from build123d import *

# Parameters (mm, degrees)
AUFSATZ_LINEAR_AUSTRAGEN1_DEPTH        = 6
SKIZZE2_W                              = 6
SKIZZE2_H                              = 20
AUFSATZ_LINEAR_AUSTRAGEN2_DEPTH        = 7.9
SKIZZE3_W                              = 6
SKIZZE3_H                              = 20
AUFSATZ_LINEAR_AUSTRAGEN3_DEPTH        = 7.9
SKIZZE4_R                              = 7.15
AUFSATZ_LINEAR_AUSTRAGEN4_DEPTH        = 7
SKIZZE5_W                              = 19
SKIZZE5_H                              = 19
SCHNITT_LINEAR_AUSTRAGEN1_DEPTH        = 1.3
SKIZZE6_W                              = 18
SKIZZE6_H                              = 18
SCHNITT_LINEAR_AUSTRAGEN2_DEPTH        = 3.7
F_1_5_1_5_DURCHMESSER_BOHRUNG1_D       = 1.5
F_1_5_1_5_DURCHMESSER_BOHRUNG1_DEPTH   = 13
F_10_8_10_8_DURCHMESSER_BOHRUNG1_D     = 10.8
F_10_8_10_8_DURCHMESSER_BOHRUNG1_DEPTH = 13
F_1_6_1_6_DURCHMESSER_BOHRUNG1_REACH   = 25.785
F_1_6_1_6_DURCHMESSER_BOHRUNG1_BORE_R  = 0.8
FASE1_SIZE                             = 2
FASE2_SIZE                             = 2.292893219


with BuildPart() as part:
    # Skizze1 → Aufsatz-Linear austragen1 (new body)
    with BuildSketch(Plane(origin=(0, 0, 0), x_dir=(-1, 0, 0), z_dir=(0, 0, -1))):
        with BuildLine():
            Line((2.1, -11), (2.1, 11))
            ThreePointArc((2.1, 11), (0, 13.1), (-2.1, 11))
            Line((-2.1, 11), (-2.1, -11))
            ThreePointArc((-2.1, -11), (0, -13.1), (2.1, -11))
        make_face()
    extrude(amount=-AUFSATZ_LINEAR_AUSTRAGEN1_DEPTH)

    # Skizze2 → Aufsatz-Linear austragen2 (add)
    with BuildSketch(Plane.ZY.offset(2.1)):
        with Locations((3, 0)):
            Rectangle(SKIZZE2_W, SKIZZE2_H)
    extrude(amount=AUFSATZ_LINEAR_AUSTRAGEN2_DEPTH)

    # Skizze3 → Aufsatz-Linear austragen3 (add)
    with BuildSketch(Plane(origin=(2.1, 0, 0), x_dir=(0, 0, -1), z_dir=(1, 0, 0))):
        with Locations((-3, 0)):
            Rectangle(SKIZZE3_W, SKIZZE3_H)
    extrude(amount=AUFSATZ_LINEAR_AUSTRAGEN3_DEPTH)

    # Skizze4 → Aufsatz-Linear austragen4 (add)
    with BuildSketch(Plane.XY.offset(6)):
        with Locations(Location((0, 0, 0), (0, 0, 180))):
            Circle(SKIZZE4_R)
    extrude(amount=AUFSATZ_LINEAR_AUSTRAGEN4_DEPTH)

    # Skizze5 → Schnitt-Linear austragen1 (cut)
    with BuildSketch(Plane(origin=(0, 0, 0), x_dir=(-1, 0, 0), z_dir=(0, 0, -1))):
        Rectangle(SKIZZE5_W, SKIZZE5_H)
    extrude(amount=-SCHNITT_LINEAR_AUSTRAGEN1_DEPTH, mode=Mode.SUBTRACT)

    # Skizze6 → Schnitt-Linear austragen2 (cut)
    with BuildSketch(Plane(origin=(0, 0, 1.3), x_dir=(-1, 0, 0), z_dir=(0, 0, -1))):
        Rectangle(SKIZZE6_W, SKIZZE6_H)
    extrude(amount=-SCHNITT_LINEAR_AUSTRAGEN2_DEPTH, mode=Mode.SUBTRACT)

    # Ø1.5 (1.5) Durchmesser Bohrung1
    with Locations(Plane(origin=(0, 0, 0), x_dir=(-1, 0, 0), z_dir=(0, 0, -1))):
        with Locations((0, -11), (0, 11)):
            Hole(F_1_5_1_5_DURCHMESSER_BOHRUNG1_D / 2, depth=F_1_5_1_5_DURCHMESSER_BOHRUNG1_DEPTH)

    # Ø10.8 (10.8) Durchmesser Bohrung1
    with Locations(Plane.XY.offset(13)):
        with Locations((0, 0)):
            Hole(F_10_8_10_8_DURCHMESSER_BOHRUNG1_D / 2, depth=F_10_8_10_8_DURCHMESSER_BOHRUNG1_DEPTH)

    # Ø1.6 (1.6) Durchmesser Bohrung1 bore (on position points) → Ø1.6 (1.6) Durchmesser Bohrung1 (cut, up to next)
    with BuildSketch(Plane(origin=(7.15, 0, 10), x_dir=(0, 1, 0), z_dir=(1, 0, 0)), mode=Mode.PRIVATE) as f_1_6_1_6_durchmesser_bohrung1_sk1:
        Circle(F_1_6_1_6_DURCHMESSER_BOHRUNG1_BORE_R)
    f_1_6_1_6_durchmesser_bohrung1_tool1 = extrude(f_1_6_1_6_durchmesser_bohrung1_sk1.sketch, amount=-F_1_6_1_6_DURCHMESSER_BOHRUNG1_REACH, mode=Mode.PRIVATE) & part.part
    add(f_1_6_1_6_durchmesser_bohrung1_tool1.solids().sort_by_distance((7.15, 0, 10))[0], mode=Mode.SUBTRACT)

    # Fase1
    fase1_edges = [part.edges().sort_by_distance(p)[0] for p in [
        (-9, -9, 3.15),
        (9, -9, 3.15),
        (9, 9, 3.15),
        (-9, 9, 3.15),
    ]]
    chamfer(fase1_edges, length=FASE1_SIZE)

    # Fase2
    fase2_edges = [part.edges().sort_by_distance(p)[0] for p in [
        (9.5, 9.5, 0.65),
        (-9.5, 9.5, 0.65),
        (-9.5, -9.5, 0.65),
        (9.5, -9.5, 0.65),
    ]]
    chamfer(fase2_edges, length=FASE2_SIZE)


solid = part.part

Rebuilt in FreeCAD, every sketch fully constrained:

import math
import FreeCAD as App
import Part
import Sketcher
from FreeCAD import Vector


def edges_at(feature, points):
    """Names of the edges that pass closest to the given points."""
    edges = feature.Shape.Edges
    near = lambda p: min(range(len(edges)), key=lambda i: edges[i].distToShape(Part.Vertex(*p))[0])
    return sorted({f"Edge{near(p) + 1}" for p in points})

doc = App.newDocument("Part")
params = doc.addObject("Spreadsheet::Sheet", "Params")
for row, (alias, value) in enumerate([
    ("sketch1_radius", "2.1 mm"),
    ("sketch1_height", "22 mm"),
    ("pad1_length", "6 mm"),
    ("sketch2_width", "20 mm"),
    ("sketch2_height", "6 mm"),
    ("pad2_length", "7.9 mm"),
    ("sketch3_width", "20 mm"),
    ("sketch3_height", "6 mm"),
    ("pad3_length", "7.9 mm"),
    ("sketch4_diameter", "14.3 mm"),
    ("pad4_length", "7 mm"),
    ("sketch5_width", "19 mm"),
    ("pocket1_length", "1.3 mm"),
    ("sketch6_width", "18 mm"),
    ("pocket2_length", "3.7 mm"),
    ("sketch7_diameter", "1.5 mm"),
    ("hole_diameter", "1.5 mm"),
    ("hole_depth", "13 mm"),
    ("sketch8_diameter", "10.8 mm"),
    ("hole2_diameter", "10.8 mm"),
    ("hole2_depth", "13 mm"),
    ("sketch9_diameter", "1.6 mm"),
    ("pocket3_length", "1.809588 mm"),
    ("chamfer_size", "2 mm"),
    ("chamfer2_size", "2.292893 mm"),
], start=1):
    params.set(f"A{row}", alias)
    params.set(f"B{row}", "=" + value)
    params.setAlias(f"B{row}", alias)

body = doc.addObject("PartDesign::Body", "Body")

# Sketch on XY plane
sketch1 = body.newObject("Sketcher::SketchObject", "Sketch")
sketch1.AttachmentSupport = (doc.getObject("XY_Plane"), [""])
sketch1.MapMode = "FlatFace"
sketch1.addGeometry([
    Part.LineSegment(Vector(-2.1, -11, 0), Vector(-2.1, 11, 0)),
    Part.ArcOfCircle(Part.Circle(Vector(0, 11, 0), Vector(0, 0, 1), 2.1), math.radians(0), math.radians(180)),
    Part.LineSegment(Vector(2.1, 11, 0), Vector(2.1, -11, 0)),
    Part.ArcOfCircle(Part.Circle(Vector(0, -11, 0), Vector(0, 0, 1), 2.1), math.radians(180), math.radians(360)),
], False)
sketch1.addConstraint([
    Sketcher.Constraint("Tangent", 0, 2, 1, 2),
    Sketcher.Constraint("Tangent", 1, 1, 2, 1),
    Sketcher.Constraint("Tangent", 2, 2, 3, 2),
    Sketcher.Constraint("Tangent", 3, 1, 0, 1),
    Sketcher.Constraint("Vertical", 0),
    Sketcher.Constraint("Vertical", 2),
    Sketcher.Constraint("Symmetric", 1, 3, 3, 3, -1, 1),
    Sketcher.Constraint("Radius", 1, 2.1),
    Sketcher.Constraint("DistanceY", 0, 1, 0, 2, 22.0),
])
sketch1.setExpression("Constraints[7]", "Params.sketch1_radius")
sketch1.setExpression("Constraints[8]", "Params.sketch1_height")
pad1 = body.newObject("PartDesign::Pad", "Pad")
pad1.Profile = sketch1
pad1.setExpression("Length", "Params.pad1_length")

# Sketch on YZ plane
sketch2 = body.newObject("Sketcher::SketchObject", "Sketch001")
sketch2.AttachmentSupport = (doc.getObject("YZ_Plane"), [""])
sketch2.MapMode = "FlatFace"
sketch2.AttachmentOffset = App.Placement(Vector(0, 0, -2.1), App.Rotation())
sketch2.addGeometry([
    Part.LineSegment(Vector(10, 0, 0), Vector(-10, 0, 0)),
    Part.LineSegment(Vector(-10, 0, 0), Vector(-10, 6, 0)),
    Part.LineSegment(Vector(-10, 6, 0), Vector(10, 6, 0)),
    Part.LineSegment(Vector(10, 6, 0), Vector(10, 0, 0)),
], False)
sketch2.addConstraint([
    Sketcher.Constraint("Coincident", 0, 2, 1, 1),
    Sketcher.Constraint("Coincident", 1, 2, 2, 1),
    Sketcher.Constraint("Coincident", 2, 2, 3, 1),
    Sketcher.Constraint("Coincident", 3, 2, 0, 1),
    Sketcher.Constraint("Horizontal", 0),
    Sketcher.Constraint("Vertical", 1),
    Sketcher.Constraint("Horizontal", 2),
    Sketcher.Constraint("Vertical", 3),
    Sketcher.Constraint("Symmetric", 0, 2, 3, 2, -1, 1),
    Sketcher.Constraint("DistanceX", 0, 2, 0, 1, 20.0),
    Sketcher.Constraint("DistanceY", 1, 1, 1, 2, 6.0),
])
sketch2.setExpression("Constraints[9]", "Params.sketch2_width")
sketch2.setExpression("Constraints[10]", "Params.sketch2_height")
pad2 = body.newObject("PartDesign::Pad", "Pad001")
pad2.Profile = sketch2
pad2.setExpression("Length", "Params.pad2_length")
pad2.Reversed = True

# Sketch on YZ plane
sketch3 = body.newObject("Sketcher::SketchObject", "Sketch002")
sketch3.AttachmentSupport = (doc.getObject("YZ_Plane"), [""])
sketch3.MapMode = "FlatFace"
sketch3.AttachmentOffset = App.Placement(Vector(0, 0, 2.1), App.Rotation())
sketch3.addGeometry([
    Part.LineSegment(Vector(10, 6, 0), Vector(-10, 6, 0)),
    Part.LineSegment(Vector(-10, 6, 0), Vector(-10, 0, 0)),
    Part.LineSegment(Vector(-10, 0, 0), Vector(10, 0, 0)),
    Part.LineSegment(Vector(10, 0, 0), Vector(10, 6, 0)),
], False)
sketch3.addConstraint([
    Sketcher.Constraint("Coincident", 0, 2, 1, 1),
    Sketcher.Constraint("Coincident", 1, 2, 2, 1),
    Sketcher.Constraint("Coincident", 2, 2, 3, 1),
    Sketcher.Constraint("Coincident", 3, 2, 0, 1),
    Sketcher.Constraint("Horizontal", 0),
    Sketcher.Constraint("Vertical", 1),
    Sketcher.Constraint("Horizontal", 2),
    Sketcher.Constraint("Vertical", 3),
    Sketcher.Constraint("Symmetric", 1, 2, 2, 2, -1, 1),
    Sketcher.Constraint("DistanceX", 0, 2, 0, 1, 20.0),
    Sketcher.Constraint("DistanceY", 1, 2, 1, 1, 6.0),
])
sketch3.setExpression("Constraints[9]", "Params.sketch3_width")
sketch3.setExpression("Constraints[10]", "Params.sketch3_height")
pad3 = body.newObject("PartDesign::Pad", "Pad002")
pad3.Profile = sketch3
pad3.setExpression("Length", "Params.pad3_length")

# Sketch on XY plane
sketch4 = body.newObject("Sketcher::SketchObject", "Sketch003")
sketch4.AttachmentSupport = (doc.getObject("XY_Plane"), [""])
sketch4.MapMode = "FlatFace"
sketch4.AttachmentOffset = App.Placement(Vector(0, 0, 6), App.Rotation())
sketch4.addGeometry(Part.Circle(Vector(0, 0, 0), Vector(0, 0, 1), 7.15), False)
sketch4.addConstraint([
    Sketcher.Constraint("Coincident", 0, 3, -1, 1),
    Sketcher.Constraint("Diameter", 0, 14.3),
])
sketch4.setExpression("Constraints[1]", "Params.sketch4_diameter")
pad4 = body.newObject("PartDesign::Pad", "Pad003")
pad4.Profile = sketch4
pad4.setExpression("Length", "Params.pad4_length")

# Sketch on XY plane
sketch5 = body.newObject("Sketcher::SketchObject", "Sketch004")
sketch5.AttachmentSupport = (doc.getObject("XY_Plane"), [""])
sketch5.MapMode = "FlatFace"
sketch5.addGeometry([
    Part.LineSegment(Vector(9.5, 9.5, 0), Vector(9.5, -9.5, 0)),
    Part.LineSegment(Vector(9.5, -9.5, 0), Vector(-9.5, -9.5, 0)),
    Part.LineSegment(Vector(-9.5, -9.5, 0), Vector(-9.5, 9.5, 0)),
    Part.LineSegment(Vector(-9.5, 9.5, 0), Vector(9.5, 9.5, 0)),
], False)
sketch5.addConstraint([
    Sketcher.Constraint("Coincident", 0, 2, 1, 1),
    Sketcher.Constraint("Coincident", 1, 2, 2, 1),
    Sketcher.Constraint("Coincident", 2, 2, 3, 1),
    Sketcher.Constraint("Coincident", 3, 2, 0, 1),
    Sketcher.Constraint("Vertical", 0),
    Sketcher.Constraint("Horizontal", 1),
    Sketcher.Constraint("Vertical", 2),
    Sketcher.Constraint("Horizontal", 3),
    Sketcher.Constraint("Symmetric", 0, 2, 2, 2, -1, 1),
    Sketcher.Constraint("Equal", 3, 0),
    Sketcher.Constraint("DistanceX", 1, 2, 1, 1, 19.0),
])
sketch5.setExpression("Constraints[10]", "Params.sketch5_width")
pocket1 = body.newObject("PartDesign::Pocket", "Pocket")
pocket1.Profile = sketch5
pocket1.setExpression("Length", "Params.pocket1_length")
pocket1.Reversed = True

# Sketch on XY plane
sketch6 = body.newObject("Sketcher::SketchObject", "Sketch005")
sketch6.AttachmentSupport = (doc.getObject("XY_Plane"), [""])
sketch6.MapMode = "FlatFace"
sketch6.AttachmentOffset = App.Placement(Vector(0, 0, 1.3), App.Rotation())
sketch6.addGeometry([
    Part.LineSegment(Vector(9, 9, 0), Vector(9, -9, 0)),
    Part.LineSegment(Vector(9, -9, 0), Vector(-9, -9, 0)),
    Part.LineSegment(Vector(-9, -9, 0), Vector(-9, 9, 0)),
    Part.LineSegment(Vector(-9, 9, 0), Vector(9, 9, 0)),
], False)
sketch6.addConstraint([
    Sketcher.Constraint("Coincident", 0, 2, 1, 1),
    Sketcher.Constraint("Coincident", 1, 2, 2, 1),
    Sketcher.Constraint("Coincident", 2, 2, 3, 1),
    Sketcher.Constraint("Coincident", 3, 2, 0, 1),
    Sketcher.Constraint("Vertical", 0),
    Sketcher.Constraint("Horizontal", 1),
    Sketcher.Constraint("Vertical", 2),
    Sketcher.Constraint("Horizontal", 3),
    Sketcher.Constraint("Symmetric", 0, 2, 2, 2, -1, 1),
    Sketcher.Constraint("Equal", 3, 0),
    Sketcher.Constraint("DistanceX", 1, 2, 1, 1, 18.0),
])
sketch6.setExpression("Constraints[10]", "Params.sketch6_width")
pocket2 = body.newObject("PartDesign::Pocket", "Pocket001")
pocket2.Profile = sketch6
pocket2.setExpression("Length", "Params.pocket2_length")
pocket2.Reversed = True

# Sketch on XY plane
sketch7 = body.newObject("Sketcher::SketchObject", "Sketch006")
sketch7.AttachmentSupport = (doc.getObject("XY_Plane"), [""])
sketch7.MapMode = "FlatFace"
sketch7.addGeometry([
    Part.Circle(Vector(0, -11, 0), Vector(0, 0, 1), 0.75),
    Part.Circle(Vector(0, 11, 0), Vector(0, 0, 1), 0.75),
], False)
sketch7.addConstraint([
    Sketcher.Constraint("Equal", 0, 1),
    Sketcher.Constraint("Symmetric", 0, 3, 1, 3, -1, 1),
    Sketcher.Constraint("PointOnObject", 0, 3, -2),
    Sketcher.Constraint("Diameter", 0, 1.5),
    Sketcher.Constraint("DistanceY", 0, 3, -1, 1, 11.0),
])
sketch7.setExpression("Constraints[3]", "Params.sketch7_diameter")
doc.recompute()
hole = body.newObject("PartDesign::Hole", "Hole")
hole.Profile = sketch7
hole.ThreadType = "None"
hole.setExpression("Diameter", "Params.hole_diameter")
hole.DepthType = "Dimension"
hole.setExpression("Depth", "Params.hole_depth")
hole.DrillPoint = "Flat"
hole.Reversed = True

# Sketch on XY plane
sketch8 = body.newObject("Sketcher::SketchObject", "Sketch007")
sketch8.AttachmentSupport = (doc.getObject("XY_Plane"), [""])
sketch8.MapMode = "FlatFace"
sketch8.AttachmentOffset = App.Placement(Vector(0, 0, 13), App.Rotation())
sketch8.addGeometry(Part.Circle(Vector(0, 0, 0), Vector(0, 0, 1), 5.4), False)
sketch8.addConstraint([
    Sketcher.Constraint("Coincident", 0, 3, -1, 1),
    Sketcher.Constraint("Diameter", 0, 10.8),
])
sketch8.setExpression("Constraints[1]", "Params.sketch8_diameter")
doc.recompute()
hole2 = body.newObject("PartDesign::Hole", "Hole001")
hole2.Profile = sketch8
hole2.ThreadType = "None"
hole2.setExpression("Diameter", "Params.hole2_diameter")
hole2.DepthType = "Dimension"
hole2.setExpression("Depth", "Params.hole2_depth")
hole2.DrillPoint = "Flat"

# Sketch on YZ plane
sketch9 = body.newObject("Sketcher::SketchObject", "Sketch008")
sketch9.AttachmentSupport = (doc.getObject("YZ_Plane"), [""])
sketch9.MapMode = "FlatFace"
sketch9.AttachmentOffset = App.Placement(Vector(0, 0, 7.15), App.Rotation())
sketch9.addGeometry(Part.Circle(Vector(0, 10, 0), Vector(0, 0, 1), 0.8), False)
sketch9.addConstraint([
    Sketcher.Constraint("PointOnObject", 0, 3, -2),
    Sketcher.Constraint("Diameter", 0, 1.6),
    Sketcher.Constraint("DistanceY", -1, 1, 0, 3, 10.0),
])
sketch9.setExpression("Constraints[1]", "Params.sketch9_diameter")
pocket3 = body.newObject("PartDesign::Pocket", "Pocket002")
pocket3.Profile = sketch9
pocket3.setExpression("Length", "Params.pocket3_length")
doc.recompute()

chamfer = body.newObject("PartDesign::Chamfer", "Chamfer")
chamfer.Base = (pocket3, edges_at(pocket3, [
    (-9, -9, 3.15),
    (9, -9, 3.15),
    (9, 9, 3.15),
    (-9, 9, 3.15),
]))
chamfer.setExpression("Size", "Params.chamfer_size")
doc.recompute()

chamfer2 = body.newObject("PartDesign::Chamfer", "Chamfer001")
chamfer2.Base = (chamfer, edges_at(chamfer, [
    (9.5, 9.5, 0.65),
    (-9.5, 9.5, 0.65),
    (-9.5, -9.5, 0.65),
    (9.5, -9.5, 0.65),
]))
chamfer2.setExpression("Size", "Params.chamfer2_size")

doc.recompute()
